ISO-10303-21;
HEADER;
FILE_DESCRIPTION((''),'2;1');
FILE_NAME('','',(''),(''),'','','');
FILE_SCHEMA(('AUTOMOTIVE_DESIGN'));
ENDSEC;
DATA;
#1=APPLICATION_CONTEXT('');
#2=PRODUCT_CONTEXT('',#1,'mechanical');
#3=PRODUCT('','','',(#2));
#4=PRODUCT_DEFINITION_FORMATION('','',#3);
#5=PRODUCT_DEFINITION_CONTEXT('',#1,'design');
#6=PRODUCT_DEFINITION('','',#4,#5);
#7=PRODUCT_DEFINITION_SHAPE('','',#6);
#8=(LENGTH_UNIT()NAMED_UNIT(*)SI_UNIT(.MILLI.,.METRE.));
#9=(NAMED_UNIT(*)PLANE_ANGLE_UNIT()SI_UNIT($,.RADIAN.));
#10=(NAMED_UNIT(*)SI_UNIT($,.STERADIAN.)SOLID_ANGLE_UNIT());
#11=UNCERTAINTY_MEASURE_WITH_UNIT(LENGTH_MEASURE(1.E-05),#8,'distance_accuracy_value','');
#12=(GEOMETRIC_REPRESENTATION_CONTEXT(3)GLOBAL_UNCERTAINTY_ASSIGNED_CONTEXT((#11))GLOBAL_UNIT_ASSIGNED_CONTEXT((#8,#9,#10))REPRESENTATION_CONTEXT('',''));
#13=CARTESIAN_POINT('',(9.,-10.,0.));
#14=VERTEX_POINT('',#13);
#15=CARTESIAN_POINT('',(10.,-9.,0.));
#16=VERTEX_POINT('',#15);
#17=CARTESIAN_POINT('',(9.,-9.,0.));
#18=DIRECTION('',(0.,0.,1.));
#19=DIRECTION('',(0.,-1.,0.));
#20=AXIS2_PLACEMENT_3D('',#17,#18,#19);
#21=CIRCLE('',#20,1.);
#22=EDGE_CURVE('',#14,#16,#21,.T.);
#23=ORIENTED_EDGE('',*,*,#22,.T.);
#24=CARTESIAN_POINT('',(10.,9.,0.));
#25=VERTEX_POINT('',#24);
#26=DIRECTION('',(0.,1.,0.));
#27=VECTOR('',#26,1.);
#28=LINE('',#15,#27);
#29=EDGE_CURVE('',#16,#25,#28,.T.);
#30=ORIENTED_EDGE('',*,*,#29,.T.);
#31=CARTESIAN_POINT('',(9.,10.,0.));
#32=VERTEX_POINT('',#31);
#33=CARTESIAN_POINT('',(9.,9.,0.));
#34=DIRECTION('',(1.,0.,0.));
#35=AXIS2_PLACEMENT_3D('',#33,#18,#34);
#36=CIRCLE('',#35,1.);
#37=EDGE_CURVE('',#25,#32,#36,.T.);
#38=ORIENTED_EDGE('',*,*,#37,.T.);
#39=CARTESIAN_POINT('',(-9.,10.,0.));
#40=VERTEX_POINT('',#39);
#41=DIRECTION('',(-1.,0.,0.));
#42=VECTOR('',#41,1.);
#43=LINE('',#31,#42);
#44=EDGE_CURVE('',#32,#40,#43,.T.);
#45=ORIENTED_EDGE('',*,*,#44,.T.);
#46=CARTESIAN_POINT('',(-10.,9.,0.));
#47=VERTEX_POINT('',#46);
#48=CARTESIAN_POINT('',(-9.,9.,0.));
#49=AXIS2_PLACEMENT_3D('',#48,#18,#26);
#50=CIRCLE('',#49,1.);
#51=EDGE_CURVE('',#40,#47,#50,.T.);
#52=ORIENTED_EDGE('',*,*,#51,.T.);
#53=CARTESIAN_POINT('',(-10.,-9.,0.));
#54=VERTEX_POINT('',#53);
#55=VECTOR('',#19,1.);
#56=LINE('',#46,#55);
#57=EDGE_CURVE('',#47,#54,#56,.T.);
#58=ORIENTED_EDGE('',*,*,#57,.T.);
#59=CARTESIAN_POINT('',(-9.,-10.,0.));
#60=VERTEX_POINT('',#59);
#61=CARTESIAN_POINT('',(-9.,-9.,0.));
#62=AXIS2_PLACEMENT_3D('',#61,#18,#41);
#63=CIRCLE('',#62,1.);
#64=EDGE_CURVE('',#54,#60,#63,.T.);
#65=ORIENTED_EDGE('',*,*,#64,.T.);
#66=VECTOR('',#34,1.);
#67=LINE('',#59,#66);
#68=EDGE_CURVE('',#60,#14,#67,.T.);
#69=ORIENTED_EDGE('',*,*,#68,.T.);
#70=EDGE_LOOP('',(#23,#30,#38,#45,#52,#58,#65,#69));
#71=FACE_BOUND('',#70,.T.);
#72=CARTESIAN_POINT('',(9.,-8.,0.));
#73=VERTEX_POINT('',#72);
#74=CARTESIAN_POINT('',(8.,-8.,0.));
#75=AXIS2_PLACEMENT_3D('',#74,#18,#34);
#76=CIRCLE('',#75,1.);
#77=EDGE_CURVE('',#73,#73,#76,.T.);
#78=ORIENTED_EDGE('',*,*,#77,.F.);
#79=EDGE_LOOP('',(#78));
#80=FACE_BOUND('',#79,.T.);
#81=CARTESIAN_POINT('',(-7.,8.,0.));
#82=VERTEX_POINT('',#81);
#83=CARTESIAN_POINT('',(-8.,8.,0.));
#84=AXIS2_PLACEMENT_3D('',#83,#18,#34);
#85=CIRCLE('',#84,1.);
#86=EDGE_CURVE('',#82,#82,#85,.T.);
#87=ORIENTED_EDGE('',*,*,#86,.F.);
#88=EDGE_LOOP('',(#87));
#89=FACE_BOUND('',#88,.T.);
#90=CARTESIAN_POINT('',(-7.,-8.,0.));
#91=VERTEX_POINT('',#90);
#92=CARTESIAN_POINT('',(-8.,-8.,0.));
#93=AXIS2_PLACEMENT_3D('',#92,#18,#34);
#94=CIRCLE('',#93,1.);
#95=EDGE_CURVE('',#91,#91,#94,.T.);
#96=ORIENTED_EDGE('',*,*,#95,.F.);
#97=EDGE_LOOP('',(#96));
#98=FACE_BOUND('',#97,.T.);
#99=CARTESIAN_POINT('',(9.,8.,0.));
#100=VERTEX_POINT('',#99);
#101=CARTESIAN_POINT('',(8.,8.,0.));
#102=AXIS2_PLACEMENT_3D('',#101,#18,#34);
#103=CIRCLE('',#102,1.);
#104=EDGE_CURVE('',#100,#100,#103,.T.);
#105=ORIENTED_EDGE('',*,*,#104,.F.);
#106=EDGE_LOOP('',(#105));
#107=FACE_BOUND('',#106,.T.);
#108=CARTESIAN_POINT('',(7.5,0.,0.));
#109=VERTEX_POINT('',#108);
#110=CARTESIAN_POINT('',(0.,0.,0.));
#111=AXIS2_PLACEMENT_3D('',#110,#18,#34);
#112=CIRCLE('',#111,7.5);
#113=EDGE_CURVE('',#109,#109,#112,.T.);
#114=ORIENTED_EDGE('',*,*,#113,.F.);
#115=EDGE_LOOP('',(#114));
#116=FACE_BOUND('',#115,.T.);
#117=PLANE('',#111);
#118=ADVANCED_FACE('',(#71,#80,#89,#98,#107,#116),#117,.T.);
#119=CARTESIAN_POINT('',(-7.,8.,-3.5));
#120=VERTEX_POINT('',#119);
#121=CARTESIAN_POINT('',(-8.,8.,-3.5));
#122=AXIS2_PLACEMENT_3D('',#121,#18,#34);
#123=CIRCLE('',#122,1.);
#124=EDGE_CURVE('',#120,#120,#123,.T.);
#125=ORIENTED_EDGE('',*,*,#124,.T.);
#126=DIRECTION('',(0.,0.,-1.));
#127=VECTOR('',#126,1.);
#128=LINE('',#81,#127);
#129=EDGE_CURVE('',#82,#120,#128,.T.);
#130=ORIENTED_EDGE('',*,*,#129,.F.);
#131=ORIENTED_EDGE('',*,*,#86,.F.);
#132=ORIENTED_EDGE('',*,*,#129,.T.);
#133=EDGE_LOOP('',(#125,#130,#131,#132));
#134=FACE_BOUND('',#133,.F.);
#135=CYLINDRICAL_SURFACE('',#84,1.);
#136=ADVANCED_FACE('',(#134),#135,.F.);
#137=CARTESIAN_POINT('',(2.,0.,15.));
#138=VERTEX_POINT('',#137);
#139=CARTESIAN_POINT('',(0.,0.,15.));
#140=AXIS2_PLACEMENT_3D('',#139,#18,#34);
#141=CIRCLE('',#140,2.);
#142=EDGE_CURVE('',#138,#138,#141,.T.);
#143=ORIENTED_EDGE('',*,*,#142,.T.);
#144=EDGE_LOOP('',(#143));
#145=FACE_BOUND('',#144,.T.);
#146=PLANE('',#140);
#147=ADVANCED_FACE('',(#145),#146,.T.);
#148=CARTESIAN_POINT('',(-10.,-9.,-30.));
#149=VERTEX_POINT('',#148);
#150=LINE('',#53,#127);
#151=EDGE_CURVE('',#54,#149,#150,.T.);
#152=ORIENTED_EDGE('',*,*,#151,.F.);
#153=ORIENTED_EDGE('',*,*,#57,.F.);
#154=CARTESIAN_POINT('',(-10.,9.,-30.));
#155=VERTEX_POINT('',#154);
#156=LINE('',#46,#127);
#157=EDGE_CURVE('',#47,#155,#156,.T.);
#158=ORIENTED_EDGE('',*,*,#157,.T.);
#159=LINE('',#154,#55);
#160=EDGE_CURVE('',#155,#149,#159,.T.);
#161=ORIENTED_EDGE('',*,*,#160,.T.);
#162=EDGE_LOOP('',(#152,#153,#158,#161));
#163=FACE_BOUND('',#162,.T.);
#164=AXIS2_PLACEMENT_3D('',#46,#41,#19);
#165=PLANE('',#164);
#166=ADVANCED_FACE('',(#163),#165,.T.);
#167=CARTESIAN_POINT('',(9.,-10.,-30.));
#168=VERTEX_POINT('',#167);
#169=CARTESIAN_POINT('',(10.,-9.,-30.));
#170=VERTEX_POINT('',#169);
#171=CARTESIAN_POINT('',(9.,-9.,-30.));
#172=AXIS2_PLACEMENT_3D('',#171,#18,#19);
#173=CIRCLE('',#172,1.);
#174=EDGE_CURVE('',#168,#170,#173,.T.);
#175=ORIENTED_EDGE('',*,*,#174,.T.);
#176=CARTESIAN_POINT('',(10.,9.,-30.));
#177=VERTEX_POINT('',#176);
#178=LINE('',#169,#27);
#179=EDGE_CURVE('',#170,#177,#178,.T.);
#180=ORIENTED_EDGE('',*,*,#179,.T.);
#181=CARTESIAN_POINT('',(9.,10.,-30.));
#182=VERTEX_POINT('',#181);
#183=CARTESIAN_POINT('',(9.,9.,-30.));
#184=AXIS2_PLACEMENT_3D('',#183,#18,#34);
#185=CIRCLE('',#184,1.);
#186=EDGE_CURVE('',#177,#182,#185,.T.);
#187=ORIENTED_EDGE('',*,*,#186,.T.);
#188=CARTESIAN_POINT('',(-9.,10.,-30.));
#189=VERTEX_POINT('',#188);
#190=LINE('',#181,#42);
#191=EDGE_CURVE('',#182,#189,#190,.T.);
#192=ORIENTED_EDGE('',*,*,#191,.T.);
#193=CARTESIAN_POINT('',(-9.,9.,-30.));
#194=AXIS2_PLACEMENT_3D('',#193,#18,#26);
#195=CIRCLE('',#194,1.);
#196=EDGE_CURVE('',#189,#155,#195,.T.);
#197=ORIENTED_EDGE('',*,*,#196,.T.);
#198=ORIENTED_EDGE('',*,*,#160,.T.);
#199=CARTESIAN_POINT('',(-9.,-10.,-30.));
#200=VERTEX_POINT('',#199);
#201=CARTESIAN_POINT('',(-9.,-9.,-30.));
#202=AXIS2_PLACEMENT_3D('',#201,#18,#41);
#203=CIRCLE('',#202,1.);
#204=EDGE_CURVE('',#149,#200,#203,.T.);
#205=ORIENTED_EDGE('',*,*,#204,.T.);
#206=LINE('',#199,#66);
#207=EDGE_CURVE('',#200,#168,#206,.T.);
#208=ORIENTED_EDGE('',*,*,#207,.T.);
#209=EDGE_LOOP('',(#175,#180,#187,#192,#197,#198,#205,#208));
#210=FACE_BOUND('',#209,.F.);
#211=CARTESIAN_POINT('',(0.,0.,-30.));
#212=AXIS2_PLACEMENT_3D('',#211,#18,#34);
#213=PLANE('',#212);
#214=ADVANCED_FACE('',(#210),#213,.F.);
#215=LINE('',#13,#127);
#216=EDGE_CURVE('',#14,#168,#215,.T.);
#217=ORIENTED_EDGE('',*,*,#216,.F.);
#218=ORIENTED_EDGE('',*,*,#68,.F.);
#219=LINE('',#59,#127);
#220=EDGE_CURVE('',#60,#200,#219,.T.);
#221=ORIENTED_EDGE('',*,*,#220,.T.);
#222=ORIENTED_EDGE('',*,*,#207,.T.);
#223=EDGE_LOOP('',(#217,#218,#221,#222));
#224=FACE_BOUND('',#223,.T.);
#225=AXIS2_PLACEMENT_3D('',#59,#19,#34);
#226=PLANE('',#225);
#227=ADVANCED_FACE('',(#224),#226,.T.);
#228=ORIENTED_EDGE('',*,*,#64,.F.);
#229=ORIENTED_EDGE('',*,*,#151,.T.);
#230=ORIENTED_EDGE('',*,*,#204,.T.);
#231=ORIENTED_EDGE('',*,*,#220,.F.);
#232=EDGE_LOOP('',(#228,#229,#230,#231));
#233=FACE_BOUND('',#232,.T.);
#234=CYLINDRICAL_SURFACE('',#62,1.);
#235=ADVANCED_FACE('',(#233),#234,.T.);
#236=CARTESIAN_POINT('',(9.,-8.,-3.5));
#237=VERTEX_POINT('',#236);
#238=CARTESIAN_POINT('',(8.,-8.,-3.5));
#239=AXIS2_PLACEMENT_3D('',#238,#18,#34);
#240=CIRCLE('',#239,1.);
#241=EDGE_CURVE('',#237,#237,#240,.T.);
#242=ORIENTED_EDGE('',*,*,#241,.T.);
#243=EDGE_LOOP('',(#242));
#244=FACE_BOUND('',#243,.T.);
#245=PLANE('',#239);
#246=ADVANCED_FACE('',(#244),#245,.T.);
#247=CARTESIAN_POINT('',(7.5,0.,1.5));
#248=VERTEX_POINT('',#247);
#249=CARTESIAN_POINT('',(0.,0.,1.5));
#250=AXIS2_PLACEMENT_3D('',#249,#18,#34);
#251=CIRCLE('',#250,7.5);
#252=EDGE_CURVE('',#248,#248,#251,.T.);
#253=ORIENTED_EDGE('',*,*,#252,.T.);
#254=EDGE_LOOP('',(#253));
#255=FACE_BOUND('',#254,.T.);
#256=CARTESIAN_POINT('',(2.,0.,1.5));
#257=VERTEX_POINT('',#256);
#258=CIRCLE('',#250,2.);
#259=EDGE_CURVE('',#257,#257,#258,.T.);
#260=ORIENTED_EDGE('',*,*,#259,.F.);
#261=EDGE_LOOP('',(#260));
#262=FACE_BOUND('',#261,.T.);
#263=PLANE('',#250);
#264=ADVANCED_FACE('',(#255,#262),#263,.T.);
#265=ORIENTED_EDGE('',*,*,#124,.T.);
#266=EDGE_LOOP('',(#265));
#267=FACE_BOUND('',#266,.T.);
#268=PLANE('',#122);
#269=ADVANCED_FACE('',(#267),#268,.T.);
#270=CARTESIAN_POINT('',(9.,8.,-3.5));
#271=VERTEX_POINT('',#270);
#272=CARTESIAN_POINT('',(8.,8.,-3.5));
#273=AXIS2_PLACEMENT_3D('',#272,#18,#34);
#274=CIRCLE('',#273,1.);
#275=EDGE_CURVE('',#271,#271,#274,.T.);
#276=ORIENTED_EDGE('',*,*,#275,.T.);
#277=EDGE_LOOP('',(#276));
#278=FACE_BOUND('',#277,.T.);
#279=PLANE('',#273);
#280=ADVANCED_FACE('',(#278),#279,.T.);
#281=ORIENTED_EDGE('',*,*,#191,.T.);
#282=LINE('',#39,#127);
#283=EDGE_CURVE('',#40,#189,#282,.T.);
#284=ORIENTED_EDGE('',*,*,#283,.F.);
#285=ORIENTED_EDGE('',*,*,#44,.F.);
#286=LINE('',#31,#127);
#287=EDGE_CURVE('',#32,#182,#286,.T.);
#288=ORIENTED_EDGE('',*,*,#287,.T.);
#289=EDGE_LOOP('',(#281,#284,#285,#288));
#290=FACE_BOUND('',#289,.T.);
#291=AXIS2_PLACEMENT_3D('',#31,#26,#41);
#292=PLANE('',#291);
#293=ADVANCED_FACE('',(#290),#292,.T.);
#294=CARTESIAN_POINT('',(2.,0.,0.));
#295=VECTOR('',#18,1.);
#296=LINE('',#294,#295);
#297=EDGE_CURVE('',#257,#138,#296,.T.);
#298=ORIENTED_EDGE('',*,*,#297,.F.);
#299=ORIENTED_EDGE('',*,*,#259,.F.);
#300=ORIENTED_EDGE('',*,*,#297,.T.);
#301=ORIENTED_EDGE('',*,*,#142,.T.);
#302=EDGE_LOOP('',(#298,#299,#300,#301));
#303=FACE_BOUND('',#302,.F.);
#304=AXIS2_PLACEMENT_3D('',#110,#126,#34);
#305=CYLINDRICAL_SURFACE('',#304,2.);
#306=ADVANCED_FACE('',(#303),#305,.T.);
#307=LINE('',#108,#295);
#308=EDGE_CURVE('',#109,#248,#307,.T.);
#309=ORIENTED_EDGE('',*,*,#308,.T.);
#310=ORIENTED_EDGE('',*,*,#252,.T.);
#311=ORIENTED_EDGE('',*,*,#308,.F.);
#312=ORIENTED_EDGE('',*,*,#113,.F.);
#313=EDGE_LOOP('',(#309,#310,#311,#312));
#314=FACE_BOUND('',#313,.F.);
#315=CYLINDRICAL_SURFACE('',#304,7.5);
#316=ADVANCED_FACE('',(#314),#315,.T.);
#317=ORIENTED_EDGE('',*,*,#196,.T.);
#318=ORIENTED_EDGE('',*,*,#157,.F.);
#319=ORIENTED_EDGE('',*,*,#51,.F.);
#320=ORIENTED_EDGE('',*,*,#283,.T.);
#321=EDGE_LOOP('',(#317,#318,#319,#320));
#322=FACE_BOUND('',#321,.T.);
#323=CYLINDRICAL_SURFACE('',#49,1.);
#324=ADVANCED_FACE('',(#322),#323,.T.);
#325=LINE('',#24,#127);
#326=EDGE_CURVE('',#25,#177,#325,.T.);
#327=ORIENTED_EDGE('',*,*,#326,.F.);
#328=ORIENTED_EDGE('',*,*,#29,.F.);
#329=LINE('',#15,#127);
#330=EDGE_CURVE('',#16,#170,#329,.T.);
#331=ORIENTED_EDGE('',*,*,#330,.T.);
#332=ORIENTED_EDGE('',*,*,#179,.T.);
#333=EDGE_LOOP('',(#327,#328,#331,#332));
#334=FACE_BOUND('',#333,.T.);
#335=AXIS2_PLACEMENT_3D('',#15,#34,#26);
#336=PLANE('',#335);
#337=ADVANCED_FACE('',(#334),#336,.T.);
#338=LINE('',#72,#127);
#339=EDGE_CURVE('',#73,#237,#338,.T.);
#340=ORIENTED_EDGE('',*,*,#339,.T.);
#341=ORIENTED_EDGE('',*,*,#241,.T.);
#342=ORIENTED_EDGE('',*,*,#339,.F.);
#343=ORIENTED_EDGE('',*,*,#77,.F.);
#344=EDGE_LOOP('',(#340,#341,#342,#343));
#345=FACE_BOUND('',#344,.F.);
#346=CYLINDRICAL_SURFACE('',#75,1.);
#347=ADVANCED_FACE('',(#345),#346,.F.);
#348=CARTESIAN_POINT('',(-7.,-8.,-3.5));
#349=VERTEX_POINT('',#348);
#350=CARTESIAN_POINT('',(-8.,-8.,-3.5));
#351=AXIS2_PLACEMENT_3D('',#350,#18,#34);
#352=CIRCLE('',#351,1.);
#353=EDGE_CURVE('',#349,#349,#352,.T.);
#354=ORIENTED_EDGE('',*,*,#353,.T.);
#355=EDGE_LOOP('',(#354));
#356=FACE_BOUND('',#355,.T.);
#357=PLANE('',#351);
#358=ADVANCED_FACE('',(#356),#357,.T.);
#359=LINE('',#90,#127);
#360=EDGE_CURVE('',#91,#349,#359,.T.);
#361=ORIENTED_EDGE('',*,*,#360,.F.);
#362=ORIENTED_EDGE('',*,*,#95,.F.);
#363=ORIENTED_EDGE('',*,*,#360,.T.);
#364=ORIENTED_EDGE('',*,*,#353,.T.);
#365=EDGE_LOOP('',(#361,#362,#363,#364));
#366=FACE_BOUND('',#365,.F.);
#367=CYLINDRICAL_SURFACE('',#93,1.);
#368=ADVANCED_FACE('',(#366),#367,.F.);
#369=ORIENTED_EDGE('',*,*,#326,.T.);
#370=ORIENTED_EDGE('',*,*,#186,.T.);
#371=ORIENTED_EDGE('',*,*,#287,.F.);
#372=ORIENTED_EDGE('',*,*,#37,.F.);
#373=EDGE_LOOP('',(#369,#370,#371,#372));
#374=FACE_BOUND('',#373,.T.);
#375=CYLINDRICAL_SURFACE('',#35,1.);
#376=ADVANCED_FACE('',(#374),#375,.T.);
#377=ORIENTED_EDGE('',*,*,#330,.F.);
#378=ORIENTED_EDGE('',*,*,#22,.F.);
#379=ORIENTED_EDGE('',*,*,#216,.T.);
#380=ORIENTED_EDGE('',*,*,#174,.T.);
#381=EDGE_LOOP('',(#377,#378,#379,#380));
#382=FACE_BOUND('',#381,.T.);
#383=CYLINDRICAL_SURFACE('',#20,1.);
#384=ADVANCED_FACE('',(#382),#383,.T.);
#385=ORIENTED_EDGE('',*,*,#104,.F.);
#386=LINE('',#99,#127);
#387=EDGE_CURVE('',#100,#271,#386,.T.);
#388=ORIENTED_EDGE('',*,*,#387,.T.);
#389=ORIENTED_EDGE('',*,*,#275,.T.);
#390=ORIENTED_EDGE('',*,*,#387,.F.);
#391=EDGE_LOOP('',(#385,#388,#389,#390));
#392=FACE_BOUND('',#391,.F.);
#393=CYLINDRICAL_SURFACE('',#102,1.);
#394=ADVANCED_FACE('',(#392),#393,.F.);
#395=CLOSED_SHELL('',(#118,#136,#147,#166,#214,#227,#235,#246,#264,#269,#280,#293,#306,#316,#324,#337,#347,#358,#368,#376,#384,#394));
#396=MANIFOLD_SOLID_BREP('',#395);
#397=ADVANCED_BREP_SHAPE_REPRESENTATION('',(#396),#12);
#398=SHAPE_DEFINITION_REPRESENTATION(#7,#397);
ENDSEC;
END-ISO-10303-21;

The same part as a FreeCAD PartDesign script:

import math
import FreeCAD as App
import Part
import Sketcher
Q = App.Units.Quantity

doc = App.newDocument("Part")
body = doc.addObject("PartDesign::Body", "Body")

# Sketch on XY plane
sketch1 = doc.addObject("Sketcher::SketchObject", "Sketch")
body.addObject(sketch1)
sketch1.AttachmentSupport = (doc.XY_Plane, [""])
sketch1.MapMode = "FlatFace"
sketch1.addGeometry(Part.ArcOfCircle(Part.Circle(App.Vector(9, 9, 0), App.Vector(0, 0, 1), 1), math.radians(0), math.radians(90)), False)
sketch1.addGeometry(Part.LineSegment(App.Vector(9, 10, 0), App.Vector(-9, 10, 0)), False)
sketch1.addGeometry(Part.ArcOfCircle(Part.Circle(App.Vector(-9, 9, 0), App.Vector(0, 0, 1), 1), math.radians(90), math.radians(180)), False)
sketch1.addGeometry(Part.LineSegment(App.Vector(-10, 9, 0), App.Vector(-10, -9, 0)), False)
sketch1.addGeometry(Part.ArcOfCircle(Part.Circle(App.Vector(-9, -9, 0), App.Vector(0, 0, 1), 1), math.radians(180), math.radians(270)), False)
sketch1.addGeometry(Part.LineSegment(App.Vector(-9, -10, 0), App.Vector(9, -10, 0)), False)
sketch1.addGeometry(Part.ArcOfCircle(Part.Circle(App.Vector(9, -9, 0), App.Vector(0, 0, 1), 1), math.radians(-90), math.radians(0)), False)
sketch1.addGeometry(Part.LineSegment(App.Vector(10, -9, 0), App.Vector(10, 9, 0)), False)
sketch1.addConstraint(Sketcher.Constraint("Tangent", 0, 2, 1, 1))
sketch1.addConstraint(Sketcher.Constraint("Tangent", 1, 2, 2, 1))
sketch1.addConstraint(Sketcher.Constraint("Tangent", 2, 2, 3, 1))
sketch1.addConstraint(Sketcher.Constraint("Tangent", 3, 2, 4, 1))
sketch1.addConstraint(Sketcher.Constraint("Tangent", 4, 2, 5, 1))
sketch1.addConstraint(Sketcher.Constraint("Tangent", 5, 2, 6, 1))
sketch1.addConstraint(Sketcher.Constraint("Tangent", 6, 2, 7, 1))
sketch1.addConstraint(Sketcher.Constraint("Tangent", 7, 2, 0, 1))
sketch1.addConstraint(Sketcher.Constraint("Horizontal", 1))
sketch1.addConstraint(Sketcher.Constraint("Vertical", 3))
sketch1.addConstraint(Sketcher.Constraint("Horizontal", 5))
sketch1.addConstraint(Sketcher.Constraint("Vertical", 7))
sketch1.addConstraint(Sketcher.Constraint("Equal", 0, 2))
sketch1.addConstraint(Sketcher.Constraint("Equal", 2, 4))
sketch1.addConstraint(Sketcher.Constraint("Equal", 4, 6))
sketch1.addConstraint(Sketcher.Constraint("Symmetric", 0, 3, 4, 3, -1, 1))
sketch1.addConstraint(Sketcher.Constraint("Equal", 5, 3))
sketch1.addConstraint(Sketcher.Constraint("Radius", 0, Q("1 mm")))
sketch1.addConstraint(Sketcher.Constraint("DistanceX", 1, 2, 1, 1, Q("18 mm")))
pad1 = doc.addObject("PartDesign::Pad", "Pad")
body.addObject(pad1)
pad1.Profile = sketch1
pad1.Length = 30
pad1.Reversed = True

# Sketch on XY plane
sketch2 = doc.addObject("Sketcher::SketchObject", "Sketch001")
body.addObject(sketch2)
sketch2.AttachmentSupport = (doc.XY_Plane, [""])
sketch2.MapMode = "FlatFace"
sketch2.addGeometry(Part.Circle(App.Vector(-8, 8, 0), App.Vector(0, 0, 1), 1), False)
sketch2.addGeometry(Part.Circle(App.Vector(8, 8, 0), App.Vector(0, 0, 1), 1), False)
sketch2.addGeometry(Part.Circle(App.Vector(-8, -8, 0), App.Vector(0, 0, 1), 1), False)
sketch2.addGeometry(Part.Circle(App.Vector(8, -8, 0), App.Vector(0, 0, 1), 1), False)
sketch2.addConstraint(Sketcher.Constraint("Equal", 0, 1))
sketch2.addConstraint(Sketcher.Constraint("Equal", 1, 2))
sketch2.addConstraint(Sketcher.Constraint("Equal", 2, 3))
sketch2.addConstraint(Sketcher.Constraint("Symmetric", 1, 3, 2, 3, -1, 1))
sketch2.addConstraint(Sketcher.Constraint("Symmetric", 0, 3, 3, 3, -1, 1))
sketch2.addConstraint(Sketcher.Constraint("Symmetric", 0, 3, 1, 3, -2))
sketch2.addConstraint(Sketcher.Constraint("Diameter", 0, Q("2 mm")))
sketch2.addConstraint(Sketcher.Constraint("DistanceX", 0, 3, -1, 1, Q("8 mm")))
sketch2.addConstraint(Sketcher.Constraint("DistanceY", -1, 1, 0, 3, Q("8 mm")))
pocket1 = doc.addObject("PartDesign::Pocket", "Pocket")
body.addObject(pocket1)
pocket1.Profile = sketch2
pocket1.Length = 3.5

# Sketch on XY plane
sketch3 = doc.addObject("Sketcher::SketchObject", "Sketch002")
body.addObject(sketch3)
sketch3.AttachmentSupport = (doc.XY_Plane, [""])
sketch3.MapMode = "FlatFace"
sketch3.addGeometry(Part.Circle(App.Vector(0, 0, 0), App.Vector(0, 0, 1), 2), False)
sketch3.addConstraint(Sketcher.Constraint("Coincident", 0, 3, -1, 1))
sketch3.addConstraint(Sketcher.Constraint("Diameter", 0, Q("4 mm")))
pad2 = doc.addObject("PartDesign::Pad", "Pad001")
body.addObject(pad2)
pad2.Profile = sketch3
pad2.Length = 15

# Sketch on XY plane
sketch4 = doc.addObject("Sketcher::SketchObject", "Sketch003")
body.addObject(sketch4)
sketch4.AttachmentSupport = (doc.XY_Plane, [""])
sketch4.MapMode = "FlatFace"
sketch4.addGeometry(Part.Circle(App.Vector(0, 0, 0), App.Vector(0, 0, 1), 7.5), False)
sketch4.addGeometry(Part.Circle(App.Vector(0, 0, 0), App.Vector(0, 0, 1), 2), False)
sketch4.addConstraint(Sketcher.Constraint("Coincident", 0, 3, -1, 1))
sketch4.addConstraint(Sketcher.Constraint("Coincident", 1, 3, -1, 1))
sketch4.addConstraint(Sketcher.Constraint("Diameter", 0, Q("15 mm")))
sketch4.addConstraint(Sketcher.Constraint("Diameter", 1, Q("4 mm")))
pad3 = doc.addObject("PartDesign::Pad", "Pad002")
body.addObject(pad3)
pad3.Profile = sketch4
pad3.Length = 1.5

doc.recompute()
